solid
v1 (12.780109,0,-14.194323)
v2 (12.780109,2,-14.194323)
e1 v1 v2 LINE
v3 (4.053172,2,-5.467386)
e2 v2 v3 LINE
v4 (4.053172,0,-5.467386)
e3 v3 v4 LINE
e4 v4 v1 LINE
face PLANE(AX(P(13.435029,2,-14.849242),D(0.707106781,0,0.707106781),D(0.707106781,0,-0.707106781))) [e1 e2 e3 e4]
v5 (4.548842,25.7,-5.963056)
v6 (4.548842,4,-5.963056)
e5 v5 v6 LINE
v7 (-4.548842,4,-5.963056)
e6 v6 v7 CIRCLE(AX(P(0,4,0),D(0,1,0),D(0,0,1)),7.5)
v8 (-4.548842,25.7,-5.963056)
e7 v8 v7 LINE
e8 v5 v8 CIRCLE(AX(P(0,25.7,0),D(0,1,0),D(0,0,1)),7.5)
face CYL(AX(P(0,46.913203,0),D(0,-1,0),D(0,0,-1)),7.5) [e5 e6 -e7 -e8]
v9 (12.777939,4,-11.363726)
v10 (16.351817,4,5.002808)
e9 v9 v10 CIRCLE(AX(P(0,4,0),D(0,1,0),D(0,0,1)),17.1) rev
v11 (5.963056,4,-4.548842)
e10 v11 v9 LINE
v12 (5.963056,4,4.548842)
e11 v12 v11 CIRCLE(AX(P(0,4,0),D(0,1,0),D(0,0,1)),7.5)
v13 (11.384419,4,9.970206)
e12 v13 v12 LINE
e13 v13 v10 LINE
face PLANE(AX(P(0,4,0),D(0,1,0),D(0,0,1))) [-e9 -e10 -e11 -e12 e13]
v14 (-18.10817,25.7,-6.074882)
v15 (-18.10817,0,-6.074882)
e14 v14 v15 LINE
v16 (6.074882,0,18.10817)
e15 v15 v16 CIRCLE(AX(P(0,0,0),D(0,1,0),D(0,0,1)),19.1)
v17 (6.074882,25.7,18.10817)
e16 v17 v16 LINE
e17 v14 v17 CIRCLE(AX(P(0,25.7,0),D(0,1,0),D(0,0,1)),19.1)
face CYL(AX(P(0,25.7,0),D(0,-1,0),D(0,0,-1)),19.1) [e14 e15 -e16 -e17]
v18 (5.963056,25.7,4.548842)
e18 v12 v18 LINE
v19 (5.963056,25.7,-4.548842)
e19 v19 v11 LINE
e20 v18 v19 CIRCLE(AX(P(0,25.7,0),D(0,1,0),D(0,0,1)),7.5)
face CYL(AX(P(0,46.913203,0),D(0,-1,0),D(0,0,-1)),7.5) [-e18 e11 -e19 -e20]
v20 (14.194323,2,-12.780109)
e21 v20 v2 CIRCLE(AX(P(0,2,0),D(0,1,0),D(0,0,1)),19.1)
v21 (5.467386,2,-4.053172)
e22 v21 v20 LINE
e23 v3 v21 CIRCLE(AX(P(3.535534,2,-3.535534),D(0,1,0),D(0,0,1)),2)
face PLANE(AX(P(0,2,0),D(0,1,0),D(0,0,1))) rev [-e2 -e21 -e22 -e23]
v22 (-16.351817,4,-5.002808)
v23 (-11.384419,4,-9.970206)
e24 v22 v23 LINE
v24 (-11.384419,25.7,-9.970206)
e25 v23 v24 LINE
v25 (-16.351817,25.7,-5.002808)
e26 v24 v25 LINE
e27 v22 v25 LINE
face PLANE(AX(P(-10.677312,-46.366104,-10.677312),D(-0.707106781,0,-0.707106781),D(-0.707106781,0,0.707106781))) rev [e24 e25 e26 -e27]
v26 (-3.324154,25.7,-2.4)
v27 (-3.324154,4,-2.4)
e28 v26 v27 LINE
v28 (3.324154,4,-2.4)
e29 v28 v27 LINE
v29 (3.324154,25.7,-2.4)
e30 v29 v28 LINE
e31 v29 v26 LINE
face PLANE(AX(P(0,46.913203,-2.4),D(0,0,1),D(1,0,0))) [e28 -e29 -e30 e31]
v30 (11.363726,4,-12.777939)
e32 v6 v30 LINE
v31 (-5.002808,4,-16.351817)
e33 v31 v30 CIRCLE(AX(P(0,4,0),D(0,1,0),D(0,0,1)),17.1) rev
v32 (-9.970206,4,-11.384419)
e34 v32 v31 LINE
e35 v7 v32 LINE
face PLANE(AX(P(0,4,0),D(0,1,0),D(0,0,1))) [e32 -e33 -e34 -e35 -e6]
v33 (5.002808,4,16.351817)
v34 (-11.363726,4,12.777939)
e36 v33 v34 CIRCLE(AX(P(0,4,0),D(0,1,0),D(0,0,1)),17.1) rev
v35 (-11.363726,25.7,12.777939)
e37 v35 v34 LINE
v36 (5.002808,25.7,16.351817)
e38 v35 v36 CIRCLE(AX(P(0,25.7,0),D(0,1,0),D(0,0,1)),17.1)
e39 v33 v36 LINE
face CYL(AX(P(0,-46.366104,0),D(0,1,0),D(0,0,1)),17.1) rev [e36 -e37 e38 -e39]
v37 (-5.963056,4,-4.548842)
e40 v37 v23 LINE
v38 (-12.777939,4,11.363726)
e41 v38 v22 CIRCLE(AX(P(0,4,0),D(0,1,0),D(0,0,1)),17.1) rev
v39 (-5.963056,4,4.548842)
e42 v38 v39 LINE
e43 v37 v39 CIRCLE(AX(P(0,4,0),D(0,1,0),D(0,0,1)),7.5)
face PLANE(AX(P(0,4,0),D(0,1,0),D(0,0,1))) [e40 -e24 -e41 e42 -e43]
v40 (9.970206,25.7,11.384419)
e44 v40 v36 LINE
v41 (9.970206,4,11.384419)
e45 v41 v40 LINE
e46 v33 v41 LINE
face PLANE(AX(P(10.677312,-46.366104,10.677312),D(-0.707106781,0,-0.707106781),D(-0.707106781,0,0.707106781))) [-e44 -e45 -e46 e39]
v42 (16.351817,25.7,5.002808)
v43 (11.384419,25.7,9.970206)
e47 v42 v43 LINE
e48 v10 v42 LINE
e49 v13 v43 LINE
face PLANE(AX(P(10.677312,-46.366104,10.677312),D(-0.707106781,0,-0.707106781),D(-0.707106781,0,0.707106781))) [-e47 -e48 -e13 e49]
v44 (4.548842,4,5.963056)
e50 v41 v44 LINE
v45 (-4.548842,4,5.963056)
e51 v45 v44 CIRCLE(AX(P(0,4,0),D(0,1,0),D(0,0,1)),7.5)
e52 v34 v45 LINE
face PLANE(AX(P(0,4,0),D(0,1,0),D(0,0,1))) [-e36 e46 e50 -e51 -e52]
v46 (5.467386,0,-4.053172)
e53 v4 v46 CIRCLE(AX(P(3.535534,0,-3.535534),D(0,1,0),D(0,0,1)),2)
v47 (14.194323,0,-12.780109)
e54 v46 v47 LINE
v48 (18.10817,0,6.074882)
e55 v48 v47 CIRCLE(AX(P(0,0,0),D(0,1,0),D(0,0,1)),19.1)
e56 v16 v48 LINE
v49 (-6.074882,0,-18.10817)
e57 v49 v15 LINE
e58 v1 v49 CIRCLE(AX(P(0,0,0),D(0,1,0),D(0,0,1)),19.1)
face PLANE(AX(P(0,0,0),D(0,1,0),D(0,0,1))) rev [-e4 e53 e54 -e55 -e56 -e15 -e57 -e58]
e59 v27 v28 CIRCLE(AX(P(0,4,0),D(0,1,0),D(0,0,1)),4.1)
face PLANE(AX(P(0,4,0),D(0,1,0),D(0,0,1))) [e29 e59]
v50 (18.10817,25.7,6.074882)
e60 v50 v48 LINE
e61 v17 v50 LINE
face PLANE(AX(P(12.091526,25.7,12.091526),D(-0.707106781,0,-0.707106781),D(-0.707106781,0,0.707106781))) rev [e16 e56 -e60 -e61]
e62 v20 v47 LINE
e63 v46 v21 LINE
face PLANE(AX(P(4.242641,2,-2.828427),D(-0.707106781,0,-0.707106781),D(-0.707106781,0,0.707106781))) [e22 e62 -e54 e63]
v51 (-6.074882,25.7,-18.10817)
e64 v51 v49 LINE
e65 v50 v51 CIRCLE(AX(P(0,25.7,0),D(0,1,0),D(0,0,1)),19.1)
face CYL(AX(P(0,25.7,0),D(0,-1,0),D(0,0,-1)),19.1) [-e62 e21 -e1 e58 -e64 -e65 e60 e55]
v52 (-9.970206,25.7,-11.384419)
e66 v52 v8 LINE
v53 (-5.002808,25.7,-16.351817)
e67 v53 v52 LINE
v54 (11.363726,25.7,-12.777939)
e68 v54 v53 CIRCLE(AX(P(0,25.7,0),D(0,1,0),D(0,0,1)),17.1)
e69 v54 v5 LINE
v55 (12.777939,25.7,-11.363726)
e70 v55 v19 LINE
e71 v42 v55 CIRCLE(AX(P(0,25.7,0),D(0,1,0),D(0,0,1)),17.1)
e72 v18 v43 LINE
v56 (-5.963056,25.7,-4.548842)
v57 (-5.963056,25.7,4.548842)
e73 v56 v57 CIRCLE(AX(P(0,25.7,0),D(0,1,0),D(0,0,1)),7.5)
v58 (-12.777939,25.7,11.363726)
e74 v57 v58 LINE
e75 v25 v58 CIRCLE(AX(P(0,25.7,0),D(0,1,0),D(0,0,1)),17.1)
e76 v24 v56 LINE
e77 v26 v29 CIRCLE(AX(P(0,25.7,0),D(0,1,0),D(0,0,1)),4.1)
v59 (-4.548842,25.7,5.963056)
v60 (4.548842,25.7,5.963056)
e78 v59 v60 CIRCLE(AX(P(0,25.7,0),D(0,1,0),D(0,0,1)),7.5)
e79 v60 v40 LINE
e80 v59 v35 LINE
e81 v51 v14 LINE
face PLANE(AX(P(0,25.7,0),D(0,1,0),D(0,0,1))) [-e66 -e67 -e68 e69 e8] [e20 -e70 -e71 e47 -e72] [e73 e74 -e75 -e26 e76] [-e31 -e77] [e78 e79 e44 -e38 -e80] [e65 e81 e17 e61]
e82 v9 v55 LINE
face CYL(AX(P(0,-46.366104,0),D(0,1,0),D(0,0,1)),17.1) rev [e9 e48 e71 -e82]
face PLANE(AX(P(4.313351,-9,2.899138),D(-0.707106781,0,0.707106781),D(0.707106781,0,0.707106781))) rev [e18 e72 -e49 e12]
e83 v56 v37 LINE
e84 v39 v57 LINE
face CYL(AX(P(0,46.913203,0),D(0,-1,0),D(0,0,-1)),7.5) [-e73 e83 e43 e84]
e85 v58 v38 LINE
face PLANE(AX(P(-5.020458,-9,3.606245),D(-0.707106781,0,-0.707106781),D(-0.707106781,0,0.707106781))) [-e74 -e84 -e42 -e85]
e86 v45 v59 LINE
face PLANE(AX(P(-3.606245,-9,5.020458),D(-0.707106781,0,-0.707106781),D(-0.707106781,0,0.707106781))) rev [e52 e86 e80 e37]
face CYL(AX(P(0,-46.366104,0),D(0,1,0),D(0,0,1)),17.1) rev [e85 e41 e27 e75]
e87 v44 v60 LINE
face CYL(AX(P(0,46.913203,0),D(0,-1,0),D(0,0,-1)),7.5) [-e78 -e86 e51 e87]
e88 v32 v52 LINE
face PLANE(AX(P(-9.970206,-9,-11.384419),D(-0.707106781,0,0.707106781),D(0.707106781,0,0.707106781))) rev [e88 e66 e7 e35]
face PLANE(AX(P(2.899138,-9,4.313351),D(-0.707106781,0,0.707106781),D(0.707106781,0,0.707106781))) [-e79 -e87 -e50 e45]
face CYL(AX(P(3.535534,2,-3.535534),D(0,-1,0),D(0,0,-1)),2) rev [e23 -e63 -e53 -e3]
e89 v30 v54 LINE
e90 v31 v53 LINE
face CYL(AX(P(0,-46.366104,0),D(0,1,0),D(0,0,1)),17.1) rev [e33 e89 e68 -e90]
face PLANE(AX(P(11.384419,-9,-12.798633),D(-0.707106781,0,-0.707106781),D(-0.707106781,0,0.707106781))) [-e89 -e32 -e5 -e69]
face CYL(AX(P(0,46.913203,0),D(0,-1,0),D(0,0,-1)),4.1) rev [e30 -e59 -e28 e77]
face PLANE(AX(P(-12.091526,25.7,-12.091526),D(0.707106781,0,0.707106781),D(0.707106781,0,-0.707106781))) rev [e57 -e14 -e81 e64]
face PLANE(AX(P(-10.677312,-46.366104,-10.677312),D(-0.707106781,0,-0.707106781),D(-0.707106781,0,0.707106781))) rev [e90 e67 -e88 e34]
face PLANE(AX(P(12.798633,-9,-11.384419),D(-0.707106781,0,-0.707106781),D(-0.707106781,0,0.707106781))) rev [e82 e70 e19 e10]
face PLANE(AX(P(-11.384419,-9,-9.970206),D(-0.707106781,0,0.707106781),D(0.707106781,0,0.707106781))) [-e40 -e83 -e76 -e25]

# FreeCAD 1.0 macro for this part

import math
import FreeCAD as App
import Part
import Sketcher
Q = App.Units.Quantity

doc = App.newDocument("Part")
body = doc.addObject("PartDesign::Body", "Body")

# Sketch on XZ plane
sketch1 = body.newObject("Sketcher::SketchObject", "Sketch")
sketch1.AttachmentSupport = (doc.getObject("XZ_Plane"), [""])
sketch1.MapMode = "FlatFace"
sketch1.addGeometry(Part.Circle(App.Vector(0, 0, 0), App.Vector(0, 0, 1), 19.1), False)
sketch1.addConstraint(Sketcher.Constraint("Coincident", 0, 3, -1, 1))
sketch1.addConstraint(Sketcher.Constraint("Diameter", 0, 38.2))
pad1 = body.newObject("PartDesign::Pad", "Pad")
pad1.Profile = sketch1
pad1.Length = 25.7
pad1.Reversed = True

# Sketch on XZ plane
sketch2 = body.newObject("Sketcher::SketchObject", "Sketch001")
sketch2.AttachmentSupport = (doc.getObject("XZ_Plane"), [""])
sketch2.MapMode = "FlatFace"
sketch2.addGeometry(Part.ArcOfCircle(Part.Circle(App.Vector(3.535534, -3.535534, 0), App.Vector(0, 0, 1), 2), math.radians(-15), math.radians(285)), False)
sketch2.addGeometry(Part.LineSegment(App.Vector(5.467386, -4.053172, 0), App.Vector(14.849242, -13.435029, 0)), False)
sketch2.addGeometry(Part.LineSegment(App.Vector(14.849242, -13.435029, 0), App.Vector(13.435029, -14.849242, 0)), False)
sketch2.addGeometry(Part.LineSegment(App.Vector(13.435029, -14.849242, 0), App.Vector(4.053172, -5.467386, 0)), False)
sketch2.addConstraint(Sketcher.Constraint("Coincident", 0, 1, 1, 1))
sketch2.addConstraint(Sketcher.Constraint("Coincident", 1, 2, 2, 1))
sketch2.addConstraint(Sketcher.Constraint("Coincident", 2, 2, 3, 1))
sketch2.addConstraint(Sketcher.Constraint("Coincident", 3, 2, 0, 2))
sketch2.addConstraint(Sketcher.Constraint("Perpendicular", 1, 2))
sketch2.addConstraint(Sketcher.Constraint("Perpendicular", 2, 3))
sketch2.addConstraint(Sketcher.Constraint("Equal", 1, 3))
sketch2.addConstraint(Sketcher.Constraint("Radius", 0, 2.0))
sketch2.addConstraint(Sketcher.Constraint("Angle", 1, Q("-45 deg")))
sketch2.addConstraint(Sketcher.Constraint("Distance", 2, 2.0))
sketch2.addConstraint(Sketcher.Constraint("Distance", 1, 13.267949))
sketch2.addConstraint(Sketcher.Constraint("DistanceY", 0, 1, -1, 1, 4.053172))
sketch2.addConstraint(Sketcher.Constraint("DistanceX", -1, 1, 2, 2, 13.435029))
pocket1 = body.newObject("PartDesign::Pocket", "Pocket")
pocket1.Profile = sketch2
pocket1.Length = 2

# Sketch on XZ plane
sketch3 = body.newObject("Sketcher::SketchObject", "Sketch002")
sketch3.AttachmentSupport = (doc.getObject("XZ_Plane"), [""])
sketch3.MapMode = "FlatFace"
sketch3.addGeometry(Part.LineSegment(App.Vector(12.091526, 12.091526, 0), App.Vector(18.10817, 6.074882, 0)), False)
sketch3.addGeometry(Part.ArcOfCircle(Part.Circle(App.Vector(0, 0, 0), App.Vector(0, 0, 1), 19.1), math.radians(18.545441), math.radians(71.454559)), False)
sketch3.addGeometry(Part.LineSegment(App.Vector(6.074882, 18.10817, 0), App.Vector(12.091526, 12.091526, 0)), False)
sketch3.addGeometry(Part.ArcOfCircle(Part.Circle(App.Vector(0, 0, 0), App.Vector(0, 0, 1), 19.1), math.radians(-161.454559), math.radians(-108.545441)), False)
sketch3.addGeometry(Part.LineSegment(App.Vector(-6.074882, -18.10817, 0), App.Vector(-12.091526, -12.091526, 0)), False)
sketch3.addGeometry(Part.LineSegment(App.Vector(-12.091526, -12.091526, 0), App.Vector(-18.10817, -6.074882, 0)), False)
sketch3.addConstraint(Sketcher.Constraint("Coincident", 0, 2, 1, 1))
sketch3.addConstraint(Sketcher.Constraint("Coincident", 1, 2, 2, 1))
sketch3.addConstraint(Sketcher.Constraint("Coincident", 2, 2, 0, 1))
sketch3.addConstraint(Sketcher.Constraint("Coincident", 3, 2, 4, 1))
sketch3.addConstraint(Sketcher.Constraint("Coincident", 4, 2, 5, 1))
sketch3.addConstraint(Sketcher.Constraint("Coincident", 5, 2, 3, 1))
sketch3.addConstraint(Sketcher.Constraint("Coincident", 1, 3, -1, 1))
sketch3.addConstraint(Sketcher.Constraint("Coincident", 3, 3, -1, 1))
sketch3.addConstraint(Sketcher.Constraint("Equal", 1, 3))
sketch3.addConstraint(Sketcher.Constraint("Symmetric", 2, 2, 4, 2, -1, 1))
sketch3.addConstraint(Sketcher.Constraint("Parallel", 0, 2))
sketch3.addConstraint(Sketcher.Constraint("Parallel", 2, 4))
sketch3.addConstraint(Sketcher.Constraint("Parallel", 4, 5))
sketch3.addConstraint(Sketcher.Constraint("Equal", 0, 2))
sketch3.addConstraint(Sketcher.Constraint("Radius", 1, 19.1))
sketch3.addConstraint(Sketcher.Constraint("Angle", 0, Q("-45 deg")))
sketch3.addConstraint(Sketcher.Constraint("Distance", 0, 8.508819))
pocket2 = body.newObject("PartDesign::Pocket", "Pocket001")
pocket2.Profile = sketch3
pocket2.Type = "ThroughAll"

# Sketch on XZ plane
sketch4 = body.newObject("Sketcher::SketchObject", "Sketch003")
sketch4.AttachmentSupport = (doc.getObject("XZ_Plane"), [""])
sketch4.MapMode = "FlatFace"
sketch4.AttachmentOffset = App.Placement(App.Vector(0, 0, -25.7), App.Rotation())
sketch4.addGeometry(Part.ArcOfCircle(Part.Circle(App.Vector(0, 0, 0), App.Vector(0, 0, 1), 17.1), math.radians(-107.011394), math.radians(0)), False)
sketch4.addGeometry(Part.LineSegment(App.Vector(-5.002808, -16.351817, 0), App.Vector(-16.351817, -5.002808, 0)), False)
sketch4.addGeometry(Part.ArcOfCircle(Part.Circle(App.Vector(0, 0, 0), App.Vector(0, 0, 1), 17.1), math.radians(72.988606), math.radians(197.011394)), False)
sketch4.addGeometry(Part.LineSegment(App.Vector(5.002808, 16.351817, 0), App.Vector(16.351817, 5.002808, 0)), False)
sketch4.addGeometry(Part.ArcOfCircle(Part.Circle(App.Vector(0, 0, 0), App.Vector(0, 0, 1), 17.1), math.radians(0), math.radians(17.011394)), False)
sketch4.addConstraint(Sketcher.Constraint("Coincident", 0, 1, 1, 1))
sketch4.addConstraint(Sketcher.Constraint("Coincident", 1, 2, 2, 2))
sketch4.addConstraint(Sketcher.Constraint("Coincident", 2, 1, 3, 1))
sketch4.addConstraint(Sketcher.Constraint("Coincident", 3, 2, 4, 2))
sketch4.addConstraint(Sketcher.Constraint("Tangent", 4, 1, 0, 2))
sketch4.addConstraint(Sketcher.Constraint("Coincident", 0, 3, -1, 1))
sketch4.addConstraint(Sketcher.Constraint("Coincident", 2, 3, -1, 1))
sketch4.addConstraint(Sketcher.Constraint("Equal", 0, 2))
sketch4.addConstraint(Sketcher.Constraint("Equal", 2, 4))
sketch4.addConstraint(Sketcher.Constraint("PointOnObject", 4, 1, -1))
sketch4.addConstraint(Sketcher.Constraint("Parallel", 1, 3))
sketch4.addConstraint(Sketcher.Constraint("Equal", 1, 3))
sketch4.addConstraint(Sketcher.Constraint("Radius", 0, 17.1))
sketch4.addConstraint(Sketcher.Constraint("Angle", 1, Q("135 deg")))
sketch4.addConstraint(Sketcher.Constraint("DistanceX", 0, 1, -1, 1, 5.002808))
pocket3 = body.newObject("PartDesign::Pocket", "Pocket002")
pocket3.Profile = sketch4
pocket3.Length = 21.7
pocket3.Reversed = True

# Sketch on XZ plane
sketch5 = body.newObject("Sketcher::SketchObject", "Sketch004")
sketch5.AttachmentSupport = (doc.getObject("XZ_Plane"), [""])
sketch5.MapMode = "FlatFace"
sketch5.AttachmentOffset = App.Placement(App.Vector(0, 0, -4), App.Rotation())
sketch5.addGeometry(Part.Circle(App.Vector(0, 0, 0), App.Vector(0, 0, 1), 7.5), False)
sketch5.addGeometry(Part.ArcOfCircle(Part.Circle(App.Vector(0, 0, 0), App.Vector(0, 0, 1), 4.1), math.radians(-35.82884), math.radians(215.82884)), False)
sketch5.addGeometry(Part.LineSegment(App.Vector(-3.324154, -2.4, 0), App.Vector(3.324154, -2.4, 0)), False)
sketch5.addConstraint(Sketcher.Constraint("Coincident", 1, 1, 2, 2))
sketch5.addConstraint(Sketcher.Constraint("Coincident", 2, 1, 1, 2))
sketch5.addConstraint(Sketcher.Constraint("Horizontal", 2))
sketch5.addConstraint(Sketcher.Constraint("Coincident", 0, 3, -1, 1))
sketch5.addConstraint(Sketcher.Constraint("Coincident", 1, 3, -1, 1))
sketch5.addConstraint(Sketcher.Constraint("Diameter", 0, 15.0))
sketch5.addConstraint(Sketcher.Constraint("Radius", 1, 4.1))
sketch5.addConstraint(Sketcher.Constraint("DistanceY", 1, 1, -1, 1, 2.4))
pad2 = body.newObject("PartDesign::Pad", "Pad001")
pad2.Profile = sketch5
pad2.Length = 21.7
pad2.Reversed = True

# Sketch on XZ plane
sketch6 = body.newObject("Sketcher::SketchObject", "Sketch005")
sketch6.AttachmentSupport = (doc.getObject("XZ_Plane"), [""])
sketch6.MapMode = "FlatFace"
sketch6.AttachmentOffset = App.Placement(App.Vector(0, 0, -25.7), App.Rotation())
sketch6.addGeometry(Part.LineSegment(App.Vector(-11.384419, -9.970206, 0), App.Vector(-4.313351, -2.899138, 0)), False)
sketch6.addGeometry(Part.LineSegment(App.Vector(-4.313351, -2.899138, 0), App.Vector(-2.899138, -4.313351, 0)), False)
sketch6.addGeometry(Part.LineSegment(App.Vector(-2.899138, -4.313351, 0), App.Vector(-9.970206, -11.384419, 0)), False)
sketch6.addGeometry(Part.LineSegment(App.Vector(-9.970206, -11.384419, 0), App.Vector(-11.384419, -9.970206, 0)), False)
sketch6.addGeometry(Part.LineSegment(App.Vector(11.384419, -12.798633, 0), App.Vector(3.606245, -5.020458, 0)), False)
sketch6.addGeometry(Part.LineSegment(App.Vector(3.606245, -5.020458, 0), App.Vector(5.020458, -3.606245, 0)), False)
sketch6.addGeometry(Part.LineSegment(App.Vector(5.020458, -3.606245, 0), App.Vector(12.798633, -11.384419, 0)), False)
sketch6.addGeometry(Part.LineSegment(App.Vector(12.798633, -11.384419, 0), App.Vector(11.384419, -12.798633, 0)), False)
sketch6.addGeometry(Part.LineSegment(App.Vector(-5.020458, 3.606245, 0), App.Vector(-12.798633, 11.384419, 0)), False)
sketch6.addGeometry(Part.LineSegment(App.Vector(-12.798633, 11.384419, 0), App.Vector(-11.384419, 12.798633, 0)), False)
sketch6.addGeometry(Part.LineSegment(App.Vector(-11.384419, 12.798633, 0), App.Vector(-3.606245, 5.020458, 0)), False)
sketch6.addGeometry(Part.LineSegment(App.Vector(-3.606245, 5.020458, 0), App.Vector(-5.020458, 3.606245, 0)), False)
sketch6.addGeometry(Part.LineSegment(App.Vector(2.899138, 4.313351, 0), App.Vector(9.970206, 11.384419, 0)), False)
sketch6.addGeometry(Part.LineSegment(App.Vector(9.970206, 11.384419, 0), App.Vector(11.384419, 9.970206, 0)), False)
sketch6.addGeometry(Part.LineSegment(App.Vector(11.384419, 9.970206, 0), App.Vector(4.313351, 2.899138, 0)), False)
sketch6.addGeometry(Part.LineSegment(App.Vector(4.313351, 2.899138, 0), App.Vector(2.899138, 4.313351, 0)), False)
sketch6.addConstraint(Sketcher.Constraint("Coincident", 0, 2, 1, 1))
sketch6.addConstraint(Sketcher.Constraint("Coincident", 1, 2, 2, 1))
sketch6.addConstraint(Sketcher.Constraint("Coincident", 2, 2, 3, 1))
sketch6.addConstraint(Sketcher.Constraint("Coincident", 3, 2, 0, 1))
sketch6.addConstraint(Sketcher.Constraint("Coincident", 4, 2, 5, 1))
sketch6.addConstraint(Sketcher.Constraint("Coincident", 5, 2, 6, 1))
sketch6.addConstraint(Sketcher.Constraint("Coincident", 6, 2, 7, 1))
sketch6.addConstraint(Sketcher.Constraint("Coincident", 7, 2, 4, 1))
sketch6.addConstraint(Sketcher.Constraint("Coincident", 8, 2, 9, 1))
sketch6.addConstraint(Sketcher.Constraint("Coincident", 9, 2, 10, 1))
sketch6.addConstraint(Sketcher.Constraint("Coincident", 10, 2, 11, 1))
sketch6.addConstraint(Sketcher.Constraint("Coincident", 11, 2, 8, 1))
sketch6.addConstraint(Sketcher.Constraint("Coincident", 12, 2, 13, 1))
sketch6.addConstraint(Sketcher.Constraint("Coincident", 13, 2, 14, 1))
sketch6.addConstraint(Sketcher.Constraint("Coincident", 14, 2, 15, 1))
sketch6.addConstraint(Sketcher.Constraint("Coincident", 15, 2, 12, 1))
sketch6.addConstraint(Sketcher.Constraint("Symmetric", 6, 2, 8, 2, -1, 1))
sketch6.addConstraint(Sketcher.Constraint("Symmetric", 7, 2, 9, 2, -1, 1))
sketch6.addConstraint(Sketcher.Constraint("Symmetric", 4, 2, 10, 2, -1, 1))
sketch6.addConstraint(Sketcher.Constraint("Symmetric", 5, 2, 11, 2, -1, 1))
sketch6.addConstraint(Sketcher.Constraint("Symmetric", 2, 2, 12, 2, -1, 1))
sketch6.addConstraint(Sketcher.Constraint("Symmetric", 3, 2, 13, 2, -1, 1))
sketch6.addConstraint(Sketcher.Constraint("Symmetric", 0, 2, 14, 2, -1, 1))
sketch6.addConstraint(Sketcher.Constraint("Symmetric", 1, 2, 15, 2, -1, 1))
sketch6.addConstraint(Sketcher.Constraint("Perpendicular", 0, 1))
sketch6.addConstraint(Sketcher.Constraint("Perpendicular", 1, 2))
sketch6.addConstraint(Sketcher.Constraint("Perpendicular", 2, 3))
sketch6.addConstraint(Sketcher.Constraint("Parallel", 3, 4))
sketch6.addConstraint(Sketcher.Constraint("Perpendicular", 4, 5))
sketch6.addConstraint(Sketcher.Constraint("Perpendicular", 5, 6))
sketch6.addConstraint(Sketcher.Constraint("Perpendicular", 6, 7))
sketch6.addConstraint(Sketcher.Constraint("Horizontal", 2, 2, 6, 2))
sketch6.addConstraint(Sketcher.Constraint("Vertical", 3, 2, 9, 2))
sketch6.addConstraint(Sketcher.Constraint("Equal", 3, 5))
sketch6.addConstraint(Sketcher.Constraint("Angle", 0, Q("45 deg")))
sketch6.addConstraint(Sketcher.Constraint("Distance", 0, 10.0))
sketch6.addConstraint(Sketcher.Constraint("Distance", 1, 2.0))
sketch6.addConstraint(Sketcher.Constraint("Distance", 4, 11.0))
sketch6.addConstraint(Sketcher.Constraint("DistanceX", 0, 2, -1, 1, 4.313351))
sketch6.addConstraint(Sketcher.Constraint("DistanceY", 1, 2, -1, 1, 4.313351))
pad3 = body.newObject("PartDesign::Pad", "Pad002")
pad3.Profile = sketch6
pad3.Length = 21.7

doc.recompute()
